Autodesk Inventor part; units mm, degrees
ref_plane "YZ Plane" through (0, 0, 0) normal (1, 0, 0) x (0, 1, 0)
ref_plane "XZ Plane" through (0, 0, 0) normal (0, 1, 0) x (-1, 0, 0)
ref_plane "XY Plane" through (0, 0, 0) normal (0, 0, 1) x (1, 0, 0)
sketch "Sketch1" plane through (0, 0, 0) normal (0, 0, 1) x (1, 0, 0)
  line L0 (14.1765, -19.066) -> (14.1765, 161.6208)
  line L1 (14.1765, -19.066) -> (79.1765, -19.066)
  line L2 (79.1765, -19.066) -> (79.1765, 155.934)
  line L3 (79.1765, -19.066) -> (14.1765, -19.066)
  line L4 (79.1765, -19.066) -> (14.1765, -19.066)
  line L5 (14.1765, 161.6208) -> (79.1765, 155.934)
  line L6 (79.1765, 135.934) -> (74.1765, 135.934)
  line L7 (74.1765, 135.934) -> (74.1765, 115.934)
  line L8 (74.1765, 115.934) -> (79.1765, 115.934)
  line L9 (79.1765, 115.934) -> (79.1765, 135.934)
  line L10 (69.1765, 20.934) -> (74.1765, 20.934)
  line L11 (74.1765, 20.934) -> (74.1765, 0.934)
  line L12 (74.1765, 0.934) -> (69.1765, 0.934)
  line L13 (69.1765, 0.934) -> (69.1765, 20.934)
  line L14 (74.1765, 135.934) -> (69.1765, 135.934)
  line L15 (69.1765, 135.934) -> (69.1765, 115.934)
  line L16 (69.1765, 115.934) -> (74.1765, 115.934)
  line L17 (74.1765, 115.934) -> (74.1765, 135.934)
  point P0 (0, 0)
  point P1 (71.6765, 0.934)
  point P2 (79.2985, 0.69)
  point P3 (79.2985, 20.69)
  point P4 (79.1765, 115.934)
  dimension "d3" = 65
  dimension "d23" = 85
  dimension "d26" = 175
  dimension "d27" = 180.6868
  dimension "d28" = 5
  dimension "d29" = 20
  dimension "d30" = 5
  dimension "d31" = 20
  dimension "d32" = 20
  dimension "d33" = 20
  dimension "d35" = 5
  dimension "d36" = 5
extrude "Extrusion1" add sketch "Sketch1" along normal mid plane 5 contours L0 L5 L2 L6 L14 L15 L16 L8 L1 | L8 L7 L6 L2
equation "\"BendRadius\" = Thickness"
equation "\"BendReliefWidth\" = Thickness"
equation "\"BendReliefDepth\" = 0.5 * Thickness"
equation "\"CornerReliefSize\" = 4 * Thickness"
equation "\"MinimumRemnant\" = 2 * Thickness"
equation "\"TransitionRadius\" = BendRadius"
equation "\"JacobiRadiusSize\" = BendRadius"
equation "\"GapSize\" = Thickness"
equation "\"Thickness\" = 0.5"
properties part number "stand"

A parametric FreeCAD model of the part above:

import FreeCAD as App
import Part
import Sketcher
Q = App.Units.Quantity


def add_polygon(sketch, points):
    """Adds a closed chain of lines whose ends are joined by coincident constraints."""
    first, n = sketch.GeometryCount, len(points)
    for a, b in zip(points, points[1:] + points[:1]):
        sketch.addGeometry(Part.LineSegment(App.Vector(*a, 0), App.Vector(*b, 0)), False)
    for i in range(n):
        sketch.addConstraint(Sketcher.Constraint("Coincident", first + i, 2, first + (i + 1) % n, 1))

doc = App.newDocument("Part")
body = doc.addObject("PartDesign::Body", "Body")

sketch1 = body.newObject("Sketcher::SketchObject", "Sketch")
sketch1.AttachmentSupport = (doc.getObject("XY_Plane"), [""])
sketch1.MapMode = "FlatFace"
add_polygon(sketch1, [(14.1765, 161.6208), (14.1765, -19.066), (79.1765, -19.066), (79.1765, 155.934)])
add_polygon(sketch1, [(69.1765, 135.934), (74.1765, 135.934), (74.1765, 115.934), (69.1765, 115.934)])
add_polygon(sketch1, [(69.1765, 0.934), (69.1765, 20.934), (74.1765, 20.934), (74.1765, 0.934)])
sketch1.addConstraint([
    Sketcher.Constraint("Vertical", 0),
    Sketcher.Constraint("Horizontal", 1),
    Sketcher.Constraint("Vertical", 2),
    Sketcher.Constraint("Horizontal", 4),
    Sketcher.Constraint("Vertical", 5),
    Sketcher.Constraint("Horizontal", 6),
    Sketcher.Constraint("Vertical", 7),
    Sketcher.Constraint("Vertical", 8),
    Sketcher.Constraint("Horizontal", 9),
    Sketcher.Constraint("Vertical", 10),
    Sketcher.Constraint("Horizontal", 11),
    Sketcher.Constraint("Vertical", 7, 2, 8, 2),
    Sketcher.Constraint("Vertical", 5, 2, 9, 2),
    Sketcher.Constraint("Equal", 7, 8),
    Sketcher.Constraint("DistanceX", 1, 1, 1, 2, 65.0),
    Sketcher.Constraint("DistanceX", 4, 1, 4, 2, 5.0),
    Sketcher.Constraint("DistanceY", 2, 1, 2, 2, 175.0),
    Sketcher.Constraint("DistanceY", 5, 2, 5, 1, 20.0),
    Sketcher.Constraint("Angle", 3, Q("175 deg")),
    Sketcher.Constraint("DistanceX", 4, 2, 2, 2, 5.0),
    Sketcher.Constraint("DistanceY", 4, 2, 2, 2, 20.0),
    Sketcher.Constraint("DistanceY", 1, 2, 10, 2, 20.0),
    Sketcher.Constraint("DistanceY", 0, 2, -1, 1, 19.066),
    Sketcher.Constraint("DistanceX", -1, 1, 0, 2, 14.1765),
])
pad1 = body.newObject("PartDesign::Pad", "Pad")
pad1.Profile = sketch1
pad1.Length = 5
pad1.Midplane = True

doc.recompute()
